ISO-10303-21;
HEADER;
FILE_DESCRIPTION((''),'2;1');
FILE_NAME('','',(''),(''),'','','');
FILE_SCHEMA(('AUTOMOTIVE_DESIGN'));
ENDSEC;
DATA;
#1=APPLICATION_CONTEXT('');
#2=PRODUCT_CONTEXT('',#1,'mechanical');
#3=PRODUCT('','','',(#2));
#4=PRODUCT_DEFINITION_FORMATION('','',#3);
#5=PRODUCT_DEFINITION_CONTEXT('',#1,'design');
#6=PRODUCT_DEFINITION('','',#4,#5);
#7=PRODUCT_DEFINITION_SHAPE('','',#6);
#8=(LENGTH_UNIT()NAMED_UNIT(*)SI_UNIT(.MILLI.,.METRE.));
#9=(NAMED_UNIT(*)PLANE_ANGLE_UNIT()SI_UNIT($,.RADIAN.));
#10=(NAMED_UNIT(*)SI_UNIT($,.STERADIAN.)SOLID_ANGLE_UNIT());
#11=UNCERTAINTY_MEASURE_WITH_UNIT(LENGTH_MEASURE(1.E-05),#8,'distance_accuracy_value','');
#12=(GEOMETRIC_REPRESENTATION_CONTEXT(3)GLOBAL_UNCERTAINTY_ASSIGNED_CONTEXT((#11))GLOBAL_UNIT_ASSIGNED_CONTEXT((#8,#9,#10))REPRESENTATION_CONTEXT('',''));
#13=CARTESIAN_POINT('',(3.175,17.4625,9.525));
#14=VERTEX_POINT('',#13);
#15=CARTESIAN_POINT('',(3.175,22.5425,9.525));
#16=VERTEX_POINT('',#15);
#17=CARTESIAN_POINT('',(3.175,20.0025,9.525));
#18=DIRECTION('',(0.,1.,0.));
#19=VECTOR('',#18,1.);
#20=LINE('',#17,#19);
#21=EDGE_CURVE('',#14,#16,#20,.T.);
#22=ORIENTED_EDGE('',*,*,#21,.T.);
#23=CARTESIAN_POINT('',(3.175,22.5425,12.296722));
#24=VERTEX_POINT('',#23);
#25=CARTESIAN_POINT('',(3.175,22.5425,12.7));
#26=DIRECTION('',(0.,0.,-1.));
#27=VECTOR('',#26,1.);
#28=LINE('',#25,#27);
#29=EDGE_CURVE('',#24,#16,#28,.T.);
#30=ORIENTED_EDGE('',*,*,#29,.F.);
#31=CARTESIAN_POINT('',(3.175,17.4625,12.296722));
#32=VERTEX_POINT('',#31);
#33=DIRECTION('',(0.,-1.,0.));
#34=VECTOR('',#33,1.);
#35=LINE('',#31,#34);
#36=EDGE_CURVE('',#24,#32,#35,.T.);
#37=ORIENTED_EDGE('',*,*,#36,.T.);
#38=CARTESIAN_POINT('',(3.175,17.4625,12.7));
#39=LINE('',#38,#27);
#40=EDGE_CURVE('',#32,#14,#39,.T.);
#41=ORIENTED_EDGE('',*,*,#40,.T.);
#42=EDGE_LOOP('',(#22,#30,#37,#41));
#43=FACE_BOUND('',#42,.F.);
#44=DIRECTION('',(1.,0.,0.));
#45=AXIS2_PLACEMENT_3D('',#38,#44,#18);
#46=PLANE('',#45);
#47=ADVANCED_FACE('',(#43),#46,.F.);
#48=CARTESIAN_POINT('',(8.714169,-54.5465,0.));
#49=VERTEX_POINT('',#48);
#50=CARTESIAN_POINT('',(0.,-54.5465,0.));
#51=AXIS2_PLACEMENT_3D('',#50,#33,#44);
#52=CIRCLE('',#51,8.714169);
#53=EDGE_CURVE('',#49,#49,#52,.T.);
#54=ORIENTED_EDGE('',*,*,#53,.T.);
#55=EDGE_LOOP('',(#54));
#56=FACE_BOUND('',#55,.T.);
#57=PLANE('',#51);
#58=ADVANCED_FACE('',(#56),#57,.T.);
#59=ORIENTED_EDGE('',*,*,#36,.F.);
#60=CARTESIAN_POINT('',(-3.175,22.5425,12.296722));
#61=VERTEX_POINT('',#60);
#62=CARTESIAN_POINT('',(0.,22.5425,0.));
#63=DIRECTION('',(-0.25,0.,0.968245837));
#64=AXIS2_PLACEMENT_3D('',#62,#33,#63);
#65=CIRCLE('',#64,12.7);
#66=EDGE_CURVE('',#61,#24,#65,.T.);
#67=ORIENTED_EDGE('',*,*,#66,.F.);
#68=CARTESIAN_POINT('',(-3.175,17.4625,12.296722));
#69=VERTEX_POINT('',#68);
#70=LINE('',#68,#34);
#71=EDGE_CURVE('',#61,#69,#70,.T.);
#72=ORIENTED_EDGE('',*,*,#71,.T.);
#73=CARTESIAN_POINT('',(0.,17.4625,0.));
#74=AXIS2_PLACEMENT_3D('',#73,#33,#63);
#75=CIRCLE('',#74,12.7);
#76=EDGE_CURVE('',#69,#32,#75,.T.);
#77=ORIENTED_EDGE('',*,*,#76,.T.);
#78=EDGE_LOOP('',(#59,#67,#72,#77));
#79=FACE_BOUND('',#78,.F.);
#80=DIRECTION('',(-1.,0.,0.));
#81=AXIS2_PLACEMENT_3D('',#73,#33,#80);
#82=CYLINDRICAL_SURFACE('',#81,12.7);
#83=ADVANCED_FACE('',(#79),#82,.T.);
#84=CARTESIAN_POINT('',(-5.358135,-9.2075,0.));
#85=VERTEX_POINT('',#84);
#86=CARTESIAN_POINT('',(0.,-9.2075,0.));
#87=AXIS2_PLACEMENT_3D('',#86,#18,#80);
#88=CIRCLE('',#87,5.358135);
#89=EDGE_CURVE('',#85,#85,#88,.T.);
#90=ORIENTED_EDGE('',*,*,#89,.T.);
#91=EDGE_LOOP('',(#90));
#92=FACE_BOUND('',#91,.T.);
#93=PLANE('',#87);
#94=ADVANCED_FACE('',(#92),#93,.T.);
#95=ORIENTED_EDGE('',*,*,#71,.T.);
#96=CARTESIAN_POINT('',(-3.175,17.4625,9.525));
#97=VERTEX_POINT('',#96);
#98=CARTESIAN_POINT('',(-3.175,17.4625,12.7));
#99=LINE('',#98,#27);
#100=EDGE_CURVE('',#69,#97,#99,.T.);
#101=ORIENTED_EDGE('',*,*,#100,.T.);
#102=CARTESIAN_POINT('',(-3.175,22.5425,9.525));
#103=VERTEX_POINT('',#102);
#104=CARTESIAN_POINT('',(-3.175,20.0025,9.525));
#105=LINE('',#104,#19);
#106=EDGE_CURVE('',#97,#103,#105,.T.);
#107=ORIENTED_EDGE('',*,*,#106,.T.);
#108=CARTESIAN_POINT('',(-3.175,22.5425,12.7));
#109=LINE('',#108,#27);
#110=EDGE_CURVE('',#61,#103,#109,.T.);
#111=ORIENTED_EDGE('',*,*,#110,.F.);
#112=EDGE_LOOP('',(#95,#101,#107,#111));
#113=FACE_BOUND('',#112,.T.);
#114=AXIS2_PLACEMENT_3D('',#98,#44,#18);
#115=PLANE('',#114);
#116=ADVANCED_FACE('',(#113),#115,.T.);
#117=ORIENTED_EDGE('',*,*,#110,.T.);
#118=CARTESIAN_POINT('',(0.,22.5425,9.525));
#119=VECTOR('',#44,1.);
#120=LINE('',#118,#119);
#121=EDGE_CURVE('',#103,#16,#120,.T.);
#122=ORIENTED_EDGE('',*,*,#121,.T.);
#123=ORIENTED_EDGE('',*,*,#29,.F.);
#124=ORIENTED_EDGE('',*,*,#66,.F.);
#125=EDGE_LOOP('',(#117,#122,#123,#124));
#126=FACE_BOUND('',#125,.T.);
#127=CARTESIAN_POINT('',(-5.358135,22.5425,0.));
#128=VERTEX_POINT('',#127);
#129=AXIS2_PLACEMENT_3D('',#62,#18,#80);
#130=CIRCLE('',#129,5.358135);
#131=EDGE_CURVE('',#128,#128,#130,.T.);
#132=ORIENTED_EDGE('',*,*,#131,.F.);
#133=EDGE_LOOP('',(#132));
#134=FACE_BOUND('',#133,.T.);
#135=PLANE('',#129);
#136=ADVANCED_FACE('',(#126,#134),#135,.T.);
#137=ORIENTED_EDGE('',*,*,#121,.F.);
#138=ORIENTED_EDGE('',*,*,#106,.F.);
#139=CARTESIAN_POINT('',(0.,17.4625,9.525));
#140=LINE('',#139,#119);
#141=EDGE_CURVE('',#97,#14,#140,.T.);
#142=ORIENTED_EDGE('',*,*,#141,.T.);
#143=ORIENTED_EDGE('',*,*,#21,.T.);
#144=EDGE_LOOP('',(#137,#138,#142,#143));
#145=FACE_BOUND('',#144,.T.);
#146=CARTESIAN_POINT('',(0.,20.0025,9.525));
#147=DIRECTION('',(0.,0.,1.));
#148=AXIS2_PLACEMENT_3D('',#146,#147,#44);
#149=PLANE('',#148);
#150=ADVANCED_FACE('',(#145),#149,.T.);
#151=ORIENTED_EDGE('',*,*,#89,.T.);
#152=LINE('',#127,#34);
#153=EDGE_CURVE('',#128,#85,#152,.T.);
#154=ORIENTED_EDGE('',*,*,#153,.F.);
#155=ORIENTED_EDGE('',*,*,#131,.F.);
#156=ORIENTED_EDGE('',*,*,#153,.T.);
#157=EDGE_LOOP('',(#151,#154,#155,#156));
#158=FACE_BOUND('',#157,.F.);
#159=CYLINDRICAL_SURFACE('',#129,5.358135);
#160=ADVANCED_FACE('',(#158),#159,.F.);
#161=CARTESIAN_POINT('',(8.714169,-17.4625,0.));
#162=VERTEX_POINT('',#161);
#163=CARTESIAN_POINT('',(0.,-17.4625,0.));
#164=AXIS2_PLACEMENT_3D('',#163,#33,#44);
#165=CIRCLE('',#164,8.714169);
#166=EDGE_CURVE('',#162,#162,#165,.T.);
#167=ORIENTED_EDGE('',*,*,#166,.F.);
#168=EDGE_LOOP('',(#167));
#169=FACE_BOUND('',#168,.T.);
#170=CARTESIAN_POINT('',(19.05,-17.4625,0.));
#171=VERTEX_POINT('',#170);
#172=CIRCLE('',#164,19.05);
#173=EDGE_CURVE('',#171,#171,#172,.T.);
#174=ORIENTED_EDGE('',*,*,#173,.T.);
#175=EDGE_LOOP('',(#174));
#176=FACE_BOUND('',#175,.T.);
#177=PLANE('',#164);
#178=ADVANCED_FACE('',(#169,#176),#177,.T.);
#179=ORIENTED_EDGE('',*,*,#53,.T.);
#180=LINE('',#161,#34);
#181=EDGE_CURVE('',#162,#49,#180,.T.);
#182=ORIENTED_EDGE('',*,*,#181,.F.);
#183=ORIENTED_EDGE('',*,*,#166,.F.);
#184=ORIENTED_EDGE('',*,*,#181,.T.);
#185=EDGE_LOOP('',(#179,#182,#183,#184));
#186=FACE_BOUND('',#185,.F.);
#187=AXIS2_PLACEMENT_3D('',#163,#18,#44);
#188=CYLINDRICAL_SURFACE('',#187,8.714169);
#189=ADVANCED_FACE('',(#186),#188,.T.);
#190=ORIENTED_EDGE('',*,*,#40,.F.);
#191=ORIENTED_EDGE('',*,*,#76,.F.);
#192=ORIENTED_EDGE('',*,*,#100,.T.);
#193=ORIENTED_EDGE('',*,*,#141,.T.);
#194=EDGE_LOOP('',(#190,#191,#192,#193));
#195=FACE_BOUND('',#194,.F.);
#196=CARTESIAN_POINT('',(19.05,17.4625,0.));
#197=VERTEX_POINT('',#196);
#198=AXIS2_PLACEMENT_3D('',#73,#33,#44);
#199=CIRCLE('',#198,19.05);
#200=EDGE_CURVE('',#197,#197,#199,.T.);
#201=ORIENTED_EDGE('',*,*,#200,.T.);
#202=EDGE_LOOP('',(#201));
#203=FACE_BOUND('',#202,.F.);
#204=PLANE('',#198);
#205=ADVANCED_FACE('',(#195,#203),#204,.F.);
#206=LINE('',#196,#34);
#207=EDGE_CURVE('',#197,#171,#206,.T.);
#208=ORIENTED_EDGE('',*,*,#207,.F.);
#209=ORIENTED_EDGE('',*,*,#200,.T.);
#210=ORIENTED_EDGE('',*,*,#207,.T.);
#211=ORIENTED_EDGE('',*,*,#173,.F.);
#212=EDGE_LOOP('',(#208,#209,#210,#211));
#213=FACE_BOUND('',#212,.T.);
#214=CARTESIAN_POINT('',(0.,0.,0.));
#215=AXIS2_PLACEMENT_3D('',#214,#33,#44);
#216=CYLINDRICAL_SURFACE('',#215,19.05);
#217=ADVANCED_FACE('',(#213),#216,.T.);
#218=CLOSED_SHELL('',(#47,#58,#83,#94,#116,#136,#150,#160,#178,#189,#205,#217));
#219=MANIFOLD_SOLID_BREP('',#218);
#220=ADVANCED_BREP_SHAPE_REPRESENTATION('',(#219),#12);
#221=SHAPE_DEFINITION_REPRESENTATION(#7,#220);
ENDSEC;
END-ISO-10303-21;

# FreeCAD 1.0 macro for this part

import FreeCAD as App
import Part
import Sketcher
Q = App.Units.Quantity


def add_polygon(sketch, points):
    """Adds a closed chain of lines whose ends are joined by coincident constraints."""
    first, n = sketch.GeometryCount, len(points)
    for a, b in zip(points, points[1:] + points[:1]):
        sketch.addGeometry(Part.LineSegment(App.Vector(*a, 0), App.Vector(*b, 0)), False)
    for i in range(n):
        sketch.addConstraint(Sketcher.Constraint("Coincident", first + i, 2, first + (i + 1) % n, 1))

doc = App.newDocument("Part")
params = doc.addObject("Spreadsheet::Sheet", "Params")
for row, (alias, value) in enumerate([
    ("sketch1_diameter", "1.5 in"),
    ("pad1_length", "1.375 in"),
    ("pad2_length", "1.46 in"),
    ("sketch3_diameter", "1 in"),
    ("pad3_length", "0.2 in"),
    ("pocket1_length", "1.25 in"),
    ("sketch5_height", "0.2 in"),
    ("sketch5_width", "0.25 in"),
    ("pocket2_length", "0.125 in"),
], start=1):
    params.set(f"A{row}", alias)
    params.set(f"B{row}", "=" + value)
    params.setAlias(f"B{row}", alias)

body = doc.addObject("PartDesign::Body", "Body")

sketch1 = body.newObject("Sketcher::SketchObject", "Sketch")
sketch1.AttachmentSupport = (doc.getObject("XZ_Plane"), [""])
sketch1.MapMode = "FlatFace"
sketch1.addGeometry(Part.Circle(App.Vector(0, 0, 0), App.Vector(0, 0, 1), 19.05), False)
sketch1.addConstraint(Sketcher.Constraint("Coincident", 0, 3, -1, 1))
sketch1.addConstraint(Sketcher.Constraint("Diameter", 0, Q("1.5 in")))
sketch1.setExpression("Constraints[1]", "Params.sketch1_diameter")
pad1 = body.newObject("PartDesign::Pad", "Pad")
pad1.Profile = sketch1
pad1.setExpression("Length", "Params.pad1_length")
pad1.Midplane = True

sketch2 = body.newObject("Sketcher::SketchObject", "Sketch001")
sketch2.AttachmentSupport = (doc.getObject("XZ_Plane"), [""])
sketch2.MapMode = "FlatFace"
sketch2.AttachmentOffset = App.Placement(App.Vector(0, 0, 0.6875 * 25.4), App.Rotation())
sketch2.addGeometry(Part.Circle(App.Vector(0, 0, 0), App.Vector(0, 0, 1), 8.714169), False)
sketch2.addConstraint(Sketcher.Constraint("Coincident", 0, 3, -1, 1))
sketch2.addConstraint(Sketcher.Constraint("Diameter", 0, Q("17.428337 mm")))
pad2 = body.newObject("PartDesign::Pad", "Pad001")
pad2.Profile = sketch2
pad2.setExpression("Length", "Params.pad2_length")

sketch3 = body.newObject("Sketcher::SketchObject", "Sketch002")
sketch3.AttachmentSupport = (doc.getObject("XZ_Plane"), [""])
sketch3.MapMode = "FlatFace"
sketch3.AttachmentOffset = App.Placement(App.Vector(0, 0, -0.6875 * 25.4), App.Rotation())
sketch3.addGeometry(Part.Circle(App.Vector(0, 0, 0), App.Vector(0, 0, 1), 12.7), False)
sketch3.addConstraint(Sketcher.Constraint("Coincident", 0, 3, -1, 1))
sketch3.addConstraint(Sketcher.Constraint("Diameter", 0, Q("1 in")))
sketch3.setExpression("Constraints[1]", "Params.sketch3_diameter")
pad3 = body.newObject("PartDesign::Pad", "Pad002")
pad3.Profile = sketch3
pad3.setExpression("Length", "Params.pad3_length")
pad3.Reversed = True

sketch4 = body.newObject("Sketcher::SketchObject", "Sketch003")
sketch4.AttachmentSupport = (doc.getObject("XZ_Plane"), [""])
sketch4.MapMode = "FlatFace"
sketch4.AttachmentOffset = App.Placement(App.Vector(0, 0, -0.8875 * 25.4), App.Rotation())
sketch4.addGeometry(Part.Circle(App.Vector(0, 0, 0), App.Vector(0, 0, 1), 5.358135), False)
sketch4.addConstraint(Sketcher.Constraint("Coincident", 0, 3, -1, 1))
sketch4.addConstraint(Sketcher.Constraint("Diameter", 0, Q("10.71627 mm")))
pocket1 = body.newObject("PartDesign::Pocket", "Pocket")
pocket1.Profile = sketch4
pocket1.setExpression("Length", "Params.pocket1_length")
pocket1.Reversed = True

sketch5 = body.newObject("Sketcher::SketchObject", "Sketch004")
sketch5.AttachmentSupport = (doc.getObject("XY_Plane"), [""])
sketch5.MapMode = "FlatFace"
sketch5.AttachmentOffset = App.Placement(App.Vector(0, 0, 0.5 * 25.4), App.Rotation())
add_polygon(sketch5, [(-3.175, 22.5425), (-3.175, 17.4625), (3.175, 17.4625), (3.175, 22.5425)])
sketch5.addConstraint(Sketcher.Constraint("Vertical", 0))
sketch5.addConstraint(Sketcher.Constraint("Horizontal", 1))
sketch5.addConstraint(Sketcher.Constraint("Vertical", 2))
sketch5.addConstraint(Sketcher.Constraint("Horizontal", 3))
sketch5.addConstraint(Sketcher.Constraint("DistanceY", 0, 2, 0, 1, Q("0.2 in")))
sketch5.addConstraint(Sketcher.Constraint("DistanceX", 1, 1, 1, 2, Q("0.25 in")))
sketch5.addConstraint(Sketcher.Constraint("DistanceX", 0, 2, -1, 1, Q("0.125 in")))
sketch5.addConstraint(Sketcher.Constraint("DistanceY", -1, 1, 0, 2, Q("0.6875 in")))
sketch5.setExpression("Constraints[8]", "Params.sketch5_height")
sketch5.setExpression("Constraints[9]", "Params.sketch5_width")
pocket2 = body.newObject("PartDesign::Pocket", "Pocket001")
pocket2.Profile = sketch5
pocket2.setExpression("Length", "Params.pocket2_length")

doc.recompute()
